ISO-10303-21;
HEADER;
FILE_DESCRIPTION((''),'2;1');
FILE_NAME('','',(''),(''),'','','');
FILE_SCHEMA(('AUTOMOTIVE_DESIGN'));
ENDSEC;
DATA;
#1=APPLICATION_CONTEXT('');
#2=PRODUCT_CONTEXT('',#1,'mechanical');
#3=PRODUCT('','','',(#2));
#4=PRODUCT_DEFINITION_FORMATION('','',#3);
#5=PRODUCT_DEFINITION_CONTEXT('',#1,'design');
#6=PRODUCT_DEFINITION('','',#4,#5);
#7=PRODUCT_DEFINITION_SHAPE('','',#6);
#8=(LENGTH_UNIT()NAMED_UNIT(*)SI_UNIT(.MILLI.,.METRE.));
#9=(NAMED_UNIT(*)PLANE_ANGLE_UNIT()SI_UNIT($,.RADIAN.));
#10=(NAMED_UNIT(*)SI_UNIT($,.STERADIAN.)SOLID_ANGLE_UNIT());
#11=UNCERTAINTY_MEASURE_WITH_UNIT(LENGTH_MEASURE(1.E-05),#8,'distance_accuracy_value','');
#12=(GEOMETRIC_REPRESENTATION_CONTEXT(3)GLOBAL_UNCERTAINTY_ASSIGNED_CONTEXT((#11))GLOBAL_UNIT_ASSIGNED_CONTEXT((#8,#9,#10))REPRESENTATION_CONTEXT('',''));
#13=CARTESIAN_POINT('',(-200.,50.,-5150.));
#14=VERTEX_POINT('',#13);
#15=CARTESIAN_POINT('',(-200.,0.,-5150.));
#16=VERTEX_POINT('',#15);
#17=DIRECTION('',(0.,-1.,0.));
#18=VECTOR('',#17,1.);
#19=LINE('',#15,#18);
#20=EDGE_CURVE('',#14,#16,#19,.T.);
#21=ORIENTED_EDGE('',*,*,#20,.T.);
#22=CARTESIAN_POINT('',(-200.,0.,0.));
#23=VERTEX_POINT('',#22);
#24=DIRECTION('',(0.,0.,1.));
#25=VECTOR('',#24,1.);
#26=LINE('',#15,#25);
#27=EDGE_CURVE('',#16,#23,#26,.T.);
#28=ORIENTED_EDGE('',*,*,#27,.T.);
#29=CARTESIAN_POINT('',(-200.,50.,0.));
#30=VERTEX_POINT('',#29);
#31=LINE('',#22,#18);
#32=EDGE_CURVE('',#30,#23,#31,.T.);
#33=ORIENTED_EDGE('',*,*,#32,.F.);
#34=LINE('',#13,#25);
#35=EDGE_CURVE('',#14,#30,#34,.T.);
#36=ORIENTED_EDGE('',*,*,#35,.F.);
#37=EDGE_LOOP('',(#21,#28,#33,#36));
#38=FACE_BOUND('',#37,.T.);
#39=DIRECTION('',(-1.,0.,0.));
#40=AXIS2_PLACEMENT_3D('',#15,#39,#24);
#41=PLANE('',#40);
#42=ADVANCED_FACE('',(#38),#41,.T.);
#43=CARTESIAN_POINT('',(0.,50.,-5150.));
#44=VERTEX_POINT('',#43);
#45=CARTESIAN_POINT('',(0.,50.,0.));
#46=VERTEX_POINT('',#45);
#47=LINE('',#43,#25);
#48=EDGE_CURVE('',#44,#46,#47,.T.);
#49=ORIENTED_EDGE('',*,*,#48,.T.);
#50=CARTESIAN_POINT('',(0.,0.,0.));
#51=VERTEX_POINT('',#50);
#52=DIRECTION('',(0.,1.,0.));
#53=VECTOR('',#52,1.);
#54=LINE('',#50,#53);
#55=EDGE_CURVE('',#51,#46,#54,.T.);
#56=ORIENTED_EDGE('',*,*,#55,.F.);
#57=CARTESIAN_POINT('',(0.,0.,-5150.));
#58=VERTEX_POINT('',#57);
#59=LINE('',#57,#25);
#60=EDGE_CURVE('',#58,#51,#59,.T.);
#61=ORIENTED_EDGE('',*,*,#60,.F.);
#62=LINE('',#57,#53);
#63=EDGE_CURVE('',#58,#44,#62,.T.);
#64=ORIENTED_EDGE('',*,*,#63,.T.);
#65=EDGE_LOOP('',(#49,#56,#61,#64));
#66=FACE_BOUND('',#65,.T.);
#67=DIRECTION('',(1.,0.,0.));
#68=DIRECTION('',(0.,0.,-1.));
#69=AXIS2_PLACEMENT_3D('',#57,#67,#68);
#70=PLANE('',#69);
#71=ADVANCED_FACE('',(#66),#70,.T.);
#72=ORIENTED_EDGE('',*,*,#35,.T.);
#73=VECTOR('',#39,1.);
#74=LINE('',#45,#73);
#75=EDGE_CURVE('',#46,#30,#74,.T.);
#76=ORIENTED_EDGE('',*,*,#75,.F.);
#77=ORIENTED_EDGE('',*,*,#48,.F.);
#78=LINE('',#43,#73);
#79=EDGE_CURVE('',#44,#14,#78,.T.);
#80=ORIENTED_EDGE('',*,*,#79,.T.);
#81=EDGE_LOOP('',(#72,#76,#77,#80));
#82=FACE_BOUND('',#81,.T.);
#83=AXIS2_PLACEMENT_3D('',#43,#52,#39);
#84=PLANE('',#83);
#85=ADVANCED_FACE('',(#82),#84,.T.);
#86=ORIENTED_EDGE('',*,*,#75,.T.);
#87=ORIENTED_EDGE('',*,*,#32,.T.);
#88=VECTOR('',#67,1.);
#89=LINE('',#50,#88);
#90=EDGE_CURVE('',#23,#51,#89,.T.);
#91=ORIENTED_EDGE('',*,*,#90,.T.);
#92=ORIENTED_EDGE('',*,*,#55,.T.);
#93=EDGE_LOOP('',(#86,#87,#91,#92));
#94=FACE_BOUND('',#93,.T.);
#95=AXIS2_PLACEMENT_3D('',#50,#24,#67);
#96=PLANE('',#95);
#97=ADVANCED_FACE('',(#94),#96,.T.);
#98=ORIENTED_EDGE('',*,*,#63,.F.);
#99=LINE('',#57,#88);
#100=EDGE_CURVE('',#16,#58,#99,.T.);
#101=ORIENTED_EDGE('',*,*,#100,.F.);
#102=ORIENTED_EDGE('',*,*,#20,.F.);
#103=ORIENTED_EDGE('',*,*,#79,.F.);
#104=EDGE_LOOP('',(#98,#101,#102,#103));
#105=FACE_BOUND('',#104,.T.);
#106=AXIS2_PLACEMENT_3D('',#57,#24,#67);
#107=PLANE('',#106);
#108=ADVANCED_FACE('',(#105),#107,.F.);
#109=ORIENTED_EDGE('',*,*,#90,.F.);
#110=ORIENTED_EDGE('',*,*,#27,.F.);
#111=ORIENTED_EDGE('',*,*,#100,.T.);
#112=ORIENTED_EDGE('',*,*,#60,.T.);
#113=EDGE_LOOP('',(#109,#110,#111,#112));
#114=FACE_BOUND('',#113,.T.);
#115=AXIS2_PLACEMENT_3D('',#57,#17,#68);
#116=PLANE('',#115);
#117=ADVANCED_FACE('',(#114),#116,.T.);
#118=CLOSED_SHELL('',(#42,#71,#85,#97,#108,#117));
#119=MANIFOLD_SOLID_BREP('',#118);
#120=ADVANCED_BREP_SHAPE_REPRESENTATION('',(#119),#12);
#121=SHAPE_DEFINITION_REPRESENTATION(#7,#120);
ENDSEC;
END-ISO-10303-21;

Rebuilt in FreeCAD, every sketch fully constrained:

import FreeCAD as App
import Part
import Sketcher
Q = App.Units.Quantity

doc = App.newDocument("Part")
body = doc.addObject("PartDesign::Body", "Body")

sketch1 = doc.addObject("Sketcher::SketchObject", "Sketch")
body.addObject(sketch1)
sketch1.AttachmentSupport = (doc.XY_Plane, [""])
sketch1.MapMode = "FlatFace"
sketch1.addGeometry([
    Part.LineSegment(App.Vector(-200, 50, 0), App.Vector(-200, 0, 0)),
    Part.LineSegment(App.Vector(-200, 0, 0), App.Vector(0, 0, 0)),
    Part.LineSegment(App.Vector(0, 0, 0), App.Vector(0, 50, 0)),
    Part.LineSegment(App.Vector(0, 50, 0), App.Vector(-200, 50, 0)),
], False)
sketch1.addConstraint([
    Sketcher.Constraint("Coincident", 0, 2, 1, 1),
    Sketcher.Constraint("Coincident", 1, 2, 2, 1),
    Sketcher.Constraint("Coincident", 2, 2, 3, 1),
    Sketcher.Constraint("Coincident", 3, 2, 0, 1),
    Sketcher.Constraint("Vertical", 0),
    Sketcher.Constraint("Horizontal", 1),
    Sketcher.Constraint("Vertical", 2),
    Sketcher.Constraint("Horizontal", 3),
    Sketcher.Constraint("Coincident", 1, 2, -1, 1),
    Sketcher.Constraint("DistanceX", 1, 1, 1, 2, Q("200 mm")),
    Sketcher.Constraint("DistanceY", 0, 2, 0, 1, Q("50 mm")),
])
pad1 = doc.addObject("PartDesign::Pad", "Pad")
body.addObject(pad1)
pad1.Profile = sketch1
pad1.Length = 5150
pad1.Reversed = True

doc.recompute()
